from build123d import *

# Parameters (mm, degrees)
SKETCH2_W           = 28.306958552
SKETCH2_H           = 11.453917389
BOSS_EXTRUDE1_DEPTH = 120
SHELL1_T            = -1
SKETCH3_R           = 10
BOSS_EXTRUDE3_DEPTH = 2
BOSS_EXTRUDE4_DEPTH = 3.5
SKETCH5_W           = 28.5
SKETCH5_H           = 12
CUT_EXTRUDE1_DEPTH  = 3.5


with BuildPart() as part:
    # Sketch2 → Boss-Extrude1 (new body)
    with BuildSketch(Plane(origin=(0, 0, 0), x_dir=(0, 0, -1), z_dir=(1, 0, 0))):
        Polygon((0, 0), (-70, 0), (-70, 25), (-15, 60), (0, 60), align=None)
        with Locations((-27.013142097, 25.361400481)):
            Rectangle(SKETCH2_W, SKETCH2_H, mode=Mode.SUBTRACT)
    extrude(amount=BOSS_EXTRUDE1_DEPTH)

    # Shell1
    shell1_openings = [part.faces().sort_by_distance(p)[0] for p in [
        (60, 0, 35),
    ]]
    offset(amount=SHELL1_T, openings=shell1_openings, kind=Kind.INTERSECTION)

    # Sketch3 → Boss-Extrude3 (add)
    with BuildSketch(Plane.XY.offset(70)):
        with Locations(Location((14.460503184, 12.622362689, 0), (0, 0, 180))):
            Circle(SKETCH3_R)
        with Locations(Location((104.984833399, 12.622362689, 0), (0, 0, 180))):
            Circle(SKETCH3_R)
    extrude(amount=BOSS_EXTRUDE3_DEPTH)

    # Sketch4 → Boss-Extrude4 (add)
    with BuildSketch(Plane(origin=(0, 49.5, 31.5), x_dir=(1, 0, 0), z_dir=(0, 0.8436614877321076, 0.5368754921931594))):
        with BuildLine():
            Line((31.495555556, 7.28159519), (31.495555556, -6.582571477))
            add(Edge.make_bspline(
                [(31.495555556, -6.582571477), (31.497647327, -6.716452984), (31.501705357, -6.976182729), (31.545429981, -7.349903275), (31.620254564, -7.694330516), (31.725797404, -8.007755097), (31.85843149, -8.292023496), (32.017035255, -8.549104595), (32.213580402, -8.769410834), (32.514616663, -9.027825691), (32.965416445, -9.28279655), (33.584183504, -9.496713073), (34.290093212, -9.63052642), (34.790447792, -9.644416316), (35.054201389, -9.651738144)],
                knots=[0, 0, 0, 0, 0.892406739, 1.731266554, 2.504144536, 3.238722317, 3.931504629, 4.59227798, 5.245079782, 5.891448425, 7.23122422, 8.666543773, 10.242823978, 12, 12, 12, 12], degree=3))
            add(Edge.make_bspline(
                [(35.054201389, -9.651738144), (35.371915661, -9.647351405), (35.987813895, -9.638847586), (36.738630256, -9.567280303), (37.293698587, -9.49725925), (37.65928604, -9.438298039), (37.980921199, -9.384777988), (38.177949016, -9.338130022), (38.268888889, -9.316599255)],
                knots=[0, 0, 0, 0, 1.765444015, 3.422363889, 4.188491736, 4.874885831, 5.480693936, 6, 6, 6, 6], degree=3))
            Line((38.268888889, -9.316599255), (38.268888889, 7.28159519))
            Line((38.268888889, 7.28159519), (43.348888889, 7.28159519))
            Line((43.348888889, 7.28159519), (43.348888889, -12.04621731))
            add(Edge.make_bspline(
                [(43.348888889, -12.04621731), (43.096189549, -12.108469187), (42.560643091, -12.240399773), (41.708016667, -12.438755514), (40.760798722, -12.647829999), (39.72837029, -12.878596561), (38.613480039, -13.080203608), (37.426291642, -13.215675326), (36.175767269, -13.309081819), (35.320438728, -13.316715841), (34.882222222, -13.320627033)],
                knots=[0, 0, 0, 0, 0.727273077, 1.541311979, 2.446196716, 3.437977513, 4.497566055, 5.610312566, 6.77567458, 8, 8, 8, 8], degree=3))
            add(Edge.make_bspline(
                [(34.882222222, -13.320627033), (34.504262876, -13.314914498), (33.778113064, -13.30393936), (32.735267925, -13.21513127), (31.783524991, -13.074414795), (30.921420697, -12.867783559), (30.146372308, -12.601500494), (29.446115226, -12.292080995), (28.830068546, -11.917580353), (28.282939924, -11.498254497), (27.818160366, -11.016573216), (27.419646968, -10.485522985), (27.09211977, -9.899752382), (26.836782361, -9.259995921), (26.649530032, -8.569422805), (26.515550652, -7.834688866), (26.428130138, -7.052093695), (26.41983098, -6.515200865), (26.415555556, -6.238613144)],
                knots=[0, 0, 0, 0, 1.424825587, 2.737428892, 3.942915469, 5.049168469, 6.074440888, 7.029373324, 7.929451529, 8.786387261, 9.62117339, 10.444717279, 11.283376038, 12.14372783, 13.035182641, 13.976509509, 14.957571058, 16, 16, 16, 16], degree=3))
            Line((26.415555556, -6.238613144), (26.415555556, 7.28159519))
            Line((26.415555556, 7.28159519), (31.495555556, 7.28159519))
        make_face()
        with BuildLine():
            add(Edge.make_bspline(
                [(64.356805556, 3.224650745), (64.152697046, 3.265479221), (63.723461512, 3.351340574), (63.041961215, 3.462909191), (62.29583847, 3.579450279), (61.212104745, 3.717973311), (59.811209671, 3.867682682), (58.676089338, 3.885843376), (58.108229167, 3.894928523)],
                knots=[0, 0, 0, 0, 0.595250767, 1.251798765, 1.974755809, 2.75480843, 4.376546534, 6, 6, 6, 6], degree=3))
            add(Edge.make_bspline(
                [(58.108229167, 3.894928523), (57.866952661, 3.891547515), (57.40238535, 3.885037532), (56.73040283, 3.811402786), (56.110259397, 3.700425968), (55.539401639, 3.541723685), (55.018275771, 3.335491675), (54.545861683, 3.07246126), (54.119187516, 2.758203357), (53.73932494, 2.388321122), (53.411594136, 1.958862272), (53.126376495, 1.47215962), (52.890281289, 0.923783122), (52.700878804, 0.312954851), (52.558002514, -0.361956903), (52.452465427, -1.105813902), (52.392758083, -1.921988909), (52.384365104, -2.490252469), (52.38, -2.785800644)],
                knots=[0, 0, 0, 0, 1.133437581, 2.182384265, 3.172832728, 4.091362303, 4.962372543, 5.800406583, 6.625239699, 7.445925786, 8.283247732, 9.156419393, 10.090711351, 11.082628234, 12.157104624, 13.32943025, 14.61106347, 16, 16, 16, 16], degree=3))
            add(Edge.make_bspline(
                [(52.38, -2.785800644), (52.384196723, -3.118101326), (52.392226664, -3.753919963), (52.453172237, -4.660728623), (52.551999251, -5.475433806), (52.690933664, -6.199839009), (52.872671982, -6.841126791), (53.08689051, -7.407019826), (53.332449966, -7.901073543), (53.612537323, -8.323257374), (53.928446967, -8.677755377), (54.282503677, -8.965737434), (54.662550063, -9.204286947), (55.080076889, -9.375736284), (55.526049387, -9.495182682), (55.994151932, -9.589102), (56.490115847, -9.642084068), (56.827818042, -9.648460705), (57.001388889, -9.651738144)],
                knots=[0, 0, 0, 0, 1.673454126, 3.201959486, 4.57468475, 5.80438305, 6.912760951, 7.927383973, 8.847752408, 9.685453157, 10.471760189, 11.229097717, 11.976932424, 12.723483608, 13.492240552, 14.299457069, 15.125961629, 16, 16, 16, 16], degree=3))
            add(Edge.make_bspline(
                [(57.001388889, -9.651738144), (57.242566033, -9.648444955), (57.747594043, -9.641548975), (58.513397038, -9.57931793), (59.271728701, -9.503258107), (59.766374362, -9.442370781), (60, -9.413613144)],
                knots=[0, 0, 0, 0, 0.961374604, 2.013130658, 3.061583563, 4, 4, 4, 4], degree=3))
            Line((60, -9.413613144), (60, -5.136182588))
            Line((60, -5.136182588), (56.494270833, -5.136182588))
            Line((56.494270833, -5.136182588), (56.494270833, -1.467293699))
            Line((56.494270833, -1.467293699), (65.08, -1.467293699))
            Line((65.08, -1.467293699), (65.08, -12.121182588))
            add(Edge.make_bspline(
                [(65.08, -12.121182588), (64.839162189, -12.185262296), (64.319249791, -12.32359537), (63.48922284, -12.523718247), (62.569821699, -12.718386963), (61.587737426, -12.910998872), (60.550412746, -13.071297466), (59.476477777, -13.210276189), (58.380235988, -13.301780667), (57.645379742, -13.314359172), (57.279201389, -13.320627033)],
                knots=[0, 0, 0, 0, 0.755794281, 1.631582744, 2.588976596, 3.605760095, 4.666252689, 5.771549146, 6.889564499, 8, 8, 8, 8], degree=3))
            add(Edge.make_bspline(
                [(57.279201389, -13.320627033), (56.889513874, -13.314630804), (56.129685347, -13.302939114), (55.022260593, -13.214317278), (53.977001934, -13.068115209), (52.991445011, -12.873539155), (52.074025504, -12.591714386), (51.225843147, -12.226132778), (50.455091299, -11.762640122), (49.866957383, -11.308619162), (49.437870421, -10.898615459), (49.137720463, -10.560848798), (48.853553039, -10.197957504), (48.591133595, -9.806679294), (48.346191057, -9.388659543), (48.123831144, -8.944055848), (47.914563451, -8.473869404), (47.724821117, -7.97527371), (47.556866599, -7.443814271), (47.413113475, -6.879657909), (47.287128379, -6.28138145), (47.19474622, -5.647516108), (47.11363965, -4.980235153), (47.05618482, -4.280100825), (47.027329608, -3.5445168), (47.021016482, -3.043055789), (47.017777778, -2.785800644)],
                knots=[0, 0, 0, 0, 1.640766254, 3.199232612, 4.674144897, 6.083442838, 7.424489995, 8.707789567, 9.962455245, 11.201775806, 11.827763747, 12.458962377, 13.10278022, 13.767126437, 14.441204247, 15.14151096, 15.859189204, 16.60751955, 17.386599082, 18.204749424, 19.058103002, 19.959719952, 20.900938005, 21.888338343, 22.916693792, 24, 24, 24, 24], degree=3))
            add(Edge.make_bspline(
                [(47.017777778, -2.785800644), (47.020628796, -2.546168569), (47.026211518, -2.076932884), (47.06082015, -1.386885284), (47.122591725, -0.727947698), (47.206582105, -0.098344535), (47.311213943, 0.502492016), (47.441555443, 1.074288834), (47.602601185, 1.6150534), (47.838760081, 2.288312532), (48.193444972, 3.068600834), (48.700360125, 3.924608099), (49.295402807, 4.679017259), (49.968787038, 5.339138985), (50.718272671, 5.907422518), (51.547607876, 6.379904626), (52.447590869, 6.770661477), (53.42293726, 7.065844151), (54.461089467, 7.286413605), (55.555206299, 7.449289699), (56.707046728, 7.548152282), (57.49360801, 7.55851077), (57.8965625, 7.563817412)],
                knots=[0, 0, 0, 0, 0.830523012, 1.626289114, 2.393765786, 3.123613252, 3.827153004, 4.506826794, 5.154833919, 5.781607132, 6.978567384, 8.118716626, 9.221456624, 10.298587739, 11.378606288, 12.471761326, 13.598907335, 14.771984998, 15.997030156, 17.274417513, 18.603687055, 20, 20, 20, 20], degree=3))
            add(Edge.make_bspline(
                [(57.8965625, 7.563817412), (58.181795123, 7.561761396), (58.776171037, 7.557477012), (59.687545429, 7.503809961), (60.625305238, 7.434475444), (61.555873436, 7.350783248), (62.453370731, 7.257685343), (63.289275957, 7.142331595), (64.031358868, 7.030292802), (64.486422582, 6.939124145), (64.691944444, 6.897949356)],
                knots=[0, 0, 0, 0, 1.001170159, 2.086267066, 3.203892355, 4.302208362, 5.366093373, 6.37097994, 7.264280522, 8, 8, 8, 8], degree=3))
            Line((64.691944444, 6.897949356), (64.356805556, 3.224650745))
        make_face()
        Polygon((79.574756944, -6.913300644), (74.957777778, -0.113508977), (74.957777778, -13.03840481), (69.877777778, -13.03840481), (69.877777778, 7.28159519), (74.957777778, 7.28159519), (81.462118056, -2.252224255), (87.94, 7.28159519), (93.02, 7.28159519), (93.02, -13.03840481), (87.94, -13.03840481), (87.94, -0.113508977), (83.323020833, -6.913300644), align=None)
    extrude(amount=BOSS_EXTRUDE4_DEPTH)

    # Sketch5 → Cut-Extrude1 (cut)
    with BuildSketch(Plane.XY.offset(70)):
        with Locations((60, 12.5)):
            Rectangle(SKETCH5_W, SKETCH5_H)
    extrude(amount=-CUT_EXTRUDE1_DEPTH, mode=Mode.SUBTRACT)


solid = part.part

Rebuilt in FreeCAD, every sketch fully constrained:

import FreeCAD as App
import Part
import Sketcher
Q = App.Units.Quantity


def faces_at(feature, points):
    """Names of the faces that lie closest to the given points."""
    faces = feature.Shape.Faces
    near = lambda p: min(range(len(faces)), key=lambda i: faces[i].distToShape(Part.Vertex(*p))[0])
    return sorted({f"Face{near(p) + 1}" for p in points})

doc = App.newDocument("Part")
params = doc.addObject("Spreadsheet::Sheet", "Params")
for row, (alias, value) in enumerate([
    ("sketch1_width", "60 mm"),
    ("sketch1_width2", "25 mm"),
    ("sketch1_height", "70 mm"),
    ("sketch1_height2", "15 mm"),
    ("pad1_length", "120 mm"),
    ("thickness_wall", "1 mm"),
    ("sketch2_diameter", "20 mm"),
    ("pad2_length", "2 mm"),
    ("sketch3_height", "20.32 mm"),
    ("pad3_length", "3.5 mm"),
    ("sketch4_height", "12 mm"),
    ("sketch4_width", "28.5 mm"),
    ("pocket1_length", "3.5 mm"),
], start=1):
    params.set(f"A{row}", alias)
    params.set(f"B{row}", "=" + value)
    params.setAlias(f"B{row}", alias)

body = doc.addObject("PartDesign::Body", "Body")

sketch1 = body.newObject("Sketcher::SketchObject", "Sketch")
sketch1.AttachmentSupport = (doc.getObject("YZ_Plane"), [""])
sketch1.MapMode = "FlatFace"
sketch1.addGeometry([
    Part.LineSegment(App.Vector(0, 70, 0), App.Vector(0, 0, 0)),
    Part.LineSegment(App.Vector(0, 0, 0), App.Vector(60, 0, 0)),
    Part.LineSegment(App.Vector(60, 0, 0), App.Vector(60, 15, 0)),
    Part.LineSegment(App.Vector(60, 15, 0), App.Vector(25, 70, 0)),
    Part.LineSegment(App.Vector(25, 70, 0), App.Vector(0, 70, 0)),
    Part.LineSegment(App.Vector(20, 41, 0), App.Vector(31, 41, 0)),
    Part.LineSegment(App.Vector(31, 41, 0), App.Vector(31, 13, 0)),
    Part.LineSegment(App.Vector(31, 13, 0), App.Vector(20, 13, 0)),
    Part.LineSegment(App.Vector(20, 13, 0), App.Vector(20, 41, 0)),
], False)
sketch1.addConstraint([
    Sketcher.Constraint("Coincident", 0, 2, 1, 1),
    Sketcher.Constraint("Coincident", 1, 2, 2, 1),
    Sketcher.Constraint("Coincident", 2, 2, 3, 1),
    Sketcher.Constraint("Coincident", 3, 2, 4, 1),
    Sketcher.Constraint("Coincident", 4, 2, 0, 1),
    Sketcher.Constraint("Coincident", 5, 2, 6, 1),
    Sketcher.Constraint("Coincident", 6, 2, 7, 1),
    Sketcher.Constraint("Coincident", 7, 2, 8, 1),
    Sketcher.Constraint("Coincident", 8, 2, 5, 1),
    Sketcher.Constraint("Vertical", 0),
    Sketcher.Constraint("Horizontal", 1),
    Sketcher.Constraint("Vertical", 2),
    Sketcher.Constraint("Horizontal", 4),
    Sketcher.Constraint("Horizontal", 5),
    Sketcher.Constraint("Vertical", 6),
    Sketcher.Constraint("Horizontal", 7),
    Sketcher.Constraint("Vertical", 8),
    Sketcher.Constraint("Coincident", 0, 2, -1, 1),
    Sketcher.Constraint("DistanceX", 1, 1, 1, 2, Q("60 mm")),
    Sketcher.Constraint("DistanceX", 4, 2, 4, 1, Q("25 mm")),
    Sketcher.Constraint("DistanceY", 0, 2, 0, 1, Q("70 mm")),
    Sketcher.Constraint("DistanceY", 2, 1, 2, 2, Q("15 mm")),
    Sketcher.Constraint("DistanceY", 6, 2, 6, 1, Q("28.306959 mm")),
    Sketcher.Constraint("DistanceX", 5, 1, 5, 2, Q("11.453917 mm")),
    Sketcher.Constraint("DistanceX", -1, 1, 5, 2, Q("31.088359 mm")),
    Sketcher.Constraint("DistanceY", -1, 1, 5, 2, Q("41.166621 mm")),
])
sketch1.setExpression("Constraints[18]", "Params.sketch1_width")
sketch1.setExpression("Constraints[19]", "Params.sketch1_width2")
sketch1.setExpression("Constraints[20]", "Params.sketch1_height")
sketch1.setExpression("Constraints[21]", "Params.sketch1_height2")
pad1 = body.newObject("PartDesign::Pad", "Pad")
pad1.Profile = sketch1
pad1.setExpression("Length", "Params.pad1_length")
doc.recompute()

thickness = body.newObject("PartDesign::Thickness", "Thickness")
thickness.Base = (pad1, faces_at(pad1, [(60, 0, 35)]))
thickness.setExpression("Value", "Params.thickness_wall")
thickness.Reversed = True
thickness.Join = "Intersection"

sketch2 = body.newObject("Sketcher::SketchObject", "Sketch001")
sketch2.AttachmentSupport = (doc.getObject("XY_Plane"), [""])
sketch2.MapMode = "FlatFace"
sketch2.AttachmentOffset = App.Placement(App.Vector(0, 0, 70), App.Rotation())
sketch2.addGeometry([
    Part.Circle(App.Vector(14, 13, 0), App.Vector(0, 0, 1), 10),
    Part.Circle(App.Vector(105, 13, 0), App.Vector(0, 0, 1), 10),
], False)
sketch2.addConstraint([
    Sketcher.Constraint("Equal", 0, 1),
    Sketcher.Constraint("Horizontal", 0, 3, 1, 3),
    Sketcher.Constraint("Diameter", 0, Q("20 mm")),
    Sketcher.Constraint("DistanceX", 0, 3, 1, 3, Q("90.52433 mm")),
    Sketcher.Constraint("DistanceX", -1, 1, 0, 3, Q("14.460503 mm")),
    Sketcher.Constraint("DistanceY", -1, 1, 0, 3, Q("12.622363 mm")),
])
sketch2.setExpression("Constraints[2]", "Params.sketch2_diameter")
pad2 = body.newObject("PartDesign::Pad", "Pad001")
pad2.Profile = sketch2
pad2.setExpression("Length", "Params.pad2_length")

sketch3 = body.newObject("Sketcher::SketchObject", "Sketch002")
sketch3.Placement = App.Placement(App.Vector(0, 49.5, 31.5), App.Rotation(App.Vector(1, 0, 0), App.Vector(0, 0.536875492, -0.843661488), App.Vector(0, 0.843661488, 0.536875492), "ZXY"))
sketch3.addGeometry([
    Part.LineSegment(App.Vector(31.495556, -6.582571, 0), App.Vector(31.495556, 7.281595, 0)),
    Part.LineSegment(App.Vector(31.495556, 7.281595, 0), App.Vector(26.415556, 7.281595, 0)),
    Part.LineSegment(App.Vector(26.415556, 7.281595, 0), App.Vector(26.415556, -6.238613, 0)),
    Part.BSplineCurve([App.Vector(34.882222, -13.320627, 0), App.Vector(34.504263, -13.314915, 0), App.Vector(33.778113, -13.303939, 0), App.Vector(32.735268, -13.215131, 0), App.Vector(31.783525, -13.074415, 0), App.Vector(30.921421, -12.867784, 0), App.Vector(30.146372, -12.6015, 0), App.Vector(29.446115, -12.292081, 0), App.Vector(28.830069, -11.91758, 0), App.Vector(28.28294, -11.498254, 0), App.Vector(27.81816, -11.016573, 0), App.Vector(27.419647, -10.485523, 0), App.Vector(27.09212, -9.899752, 0), App.Vector(26.836782, -9.259996, 0), App.Vector(26.64953, -8.569423, 0), App.Vector(26.515551, -7.834689, 0), App.Vector(26.42813, -7.052094, 0), App.Vector(26.419831, -6.515201, 0), App.Vector(26.415556, -6.238613, 0)], [4, 1, 1, 1, 1, 1, 1, 1, 1, 1, 1, 1, 1, 1, 1, 1, 4], [0, 1.424825587, 2.737428892, 3.942915469, 5.049168469, 6.074440888, 7.029373324, 7.929451529, 8.786387261, 9.62117339, 10.444717279, 11.283376038, 12.14372783, 13.035182641, 13.976509509, 14.957571058, 16], False, 3, [1, 1, 1, 1, 1, 1, 1, 1, 1, 1, 1, 1, 1, 1, 1, 1, 1, 1, 1], False),
    Part.BSplineCurve([App.Vector(43.348889, -12.046217, 0), App.Vector(43.09619, -12.108469, 0), App.Vector(42.560643, -12.2404, 0), App.Vector(41.708017, -12.438756, 0), App.Vector(40.760799, -12.64783, 0), App.Vector(39.72837, -12.878597, 0), App.Vector(38.61348, -13.080204, 0), App.Vector(37.426292, -13.215675, 0), App.Vector(36.175767, -13.309082, 0), App.Vector(35.320439, -13.316716, 0), App.Vector(34.882222, -13.320627, 0)], [4, 1, 1, 1, 1, 1, 1, 1, 4], [0, 0.727273077, 1.541311979, 2.446196716, 3.437977513, 4.497566055, 5.610312566, 6.77567458, 8], False, 3, [1, 1, 1, 1, 1, 1, 1, 1, 1, 1, 1], False),
    Part.LineSegment(App.Vector(43.348889, -12.046217, 0), App.Vector(43.348889, 7.281595, 0)),
    Part.LineSegment(App.Vector(43.348889, 7.281595, 0), App.Vector(38.268889, 7.281595, 0)),
    Part.LineSegment(App.Vector(38.268889, 7.281595, 0), App.Vector(38.268889, -9.316599, 0)),
    Part.BSplineCurve([App.Vector(35.054201, -9.651738, 0), App.Vector(35.371916, -9.647351, 0), App.Vector(35.987814, -9.638848, 0), App.Vector(36.73863, -9.56728, 0), App.Vector(37.293699, -9.497259, 0), App.Vector(37.659286, -9.438298, 0), App.Vector(37.980921, -9.384778, 0), App.Vector(38.177949, -9.33813, 0), App.Vector(38.268889, -9.316599, 0)], [4, 1, 1, 1, 1, 1, 4], [0, 1.765444015, 3.422363889, 4.188491736, 4.874885831, 5.480693936, 6], False, 3, [1, 1, 1, 1, 1, 1, 1, 1, 1], False),
    Part.BSplineCurve([App.Vector(31.495556, -6.582571, 0), App.Vector(31.497647, -6.716453, 0), App.Vector(31.501705, -6.976183, 0), App.Vector(31.54543, -7.349903, 0), App.Vector(31.620255, -7.694331, 0), App.Vector(31.725797, -8.007755, 0), App.Vector(31.858431, -8.292023, 0), App.Vector(32.017035, -8.549105, 0), App.Vector(32.21358, -8.769411, 0), App.Vector(32.514617, -9.027826, 0), App.Vector(32.965416, -9.282797, 0), App.Vector(33.584184, -9.496713, 0), App.Vector(34.290093, -9.630526, 0), App.Vector(34.790448, -9.644416, 0), App.Vector(35.054201, -9.651738, 0)], [4, 1, 1, 1, 1, 1, 1, 1, 1, 1, 1, 1, 4], [0, 0.892406739, 1.731266554, 2.504144536, 3.238722317, 3.931504629, 4.59227798, 5.245079782, 5.891448425, 7.23122422, 8.666543773, 10.242823978, 12], False, 3, [1, 1, 1, 1, 1, 1, 1, 1, 1, 1, 1, 1, 1, 1, 1], False),
    Part.BSplineCurve([App.Vector(64.356806, 3.224651, 0), App.Vector(64.152697, 3.265479, 0), App.Vector(63.723462, 3.351341, 0), App.Vector(63.041961, 3.462909, 0), App.Vector(62.295838, 3.57945, 0), App.Vector(61.212105, 3.717973, 0), App.Vector(59.81121, 3.867683, 0), App.Vector(58.676089, 3.885843, 0), App.Vector(58.108229, 3.894929, 0)], [4, 1, 1, 1, 1, 1, 4], [0, 0.595250767, 1.251798765, 1.974755809, 2.75480843, 4.376546534, 6], False, 3, [1, 1, 1, 1, 1, 1, 1, 1, 1], False),
    Part.LineSegment(App.Vector(64.356806, 3.224651, 0), App.Vector(64.691944, 6.897949, 0)),
    Part.BSplineCurve([App.Vector(57.896563, 7.563817, 0), App.Vector(58.181795, 7.561761, 0), App.Vector(58.776171, 7.557477, 0), App.Vector(59.687545, 7.50381, 0), App.Vector(60.625305, 7.434475, 0), App.Vector(61.555873, 7.350783, 0), App.Vector(62.453371, 7.257685, 0), App.Vector(63.289276, 7.142332, 0), App.Vector(64.031359, 7.030293, 0), App.Vector(64.486423, 6.939124, 0), App.Vector(64.691944, 6.897949, 0)], [4, 1, 1, 1, 1, 1, 1, 1, 4], [0, 1.001170159, 2.086267066, 3.203892355, 4.302208362, 5.366093373, 6.37097994, 7.264280522, 8], False, 3, [1, 1, 1, 1, 1, 1, 1, 1, 1, 1, 1], False),
    Part.BSplineCurve([App.Vector(47.017778, -2.785801, 0), App.Vector(47.020629, -2.546169, 0), App.Vector(47.026212, -2.076933, 0), App.Vector(47.06082, -1.386885, 0), App.Vector(47.122592, -0.727948, 0), App.Vector(47.206582, -0.098345, 0), App.Vector(47.311214, 0.502492, 0), App.Vector(47.441555, 1.074289, 0), App.Vector(47.602601, 1.615053, 0), App.Vector(47.83876, 2.288313, 0), App.Vector(48.193445, 3.068601, 0), App.Vector(48.70036, 3.924608, 0), App.Vector(49.295403, 4.679017, 0), App.Vector(49.968787, 5.339139, 0), App.Vector(50.718273, 5.907423, 0), App.Vector(51.547608, 6.379905, 0), App.Vector(52.447591, 6.770661, 0), App.Vector(53.422937, 7.065844, 0), App.Vector(54.461089, 7.286414, 0), App.Vector(55.555206, 7.44929, 0), App.Vector(56.707047, 7.548152, 0), App.Vector(57.493608, 7.558511, 0), App.Vector(57.896563, 7.563817, 0)], [4, 1, 1, 1, 1, 1, 1, 1, 1, 1, 1, 1, 1, 1, 1, 1, 1, 1, 1, 1, 4], [0, 0.830523012, 1.626289114, 2.393765786, 3.123613252, 3.827153004, 4.506826794, 5.154833919, 5.781607132, 6.978567384, 8.118716626, 9.221456624, 10.298587739, 11.378606288, 12.471761326, 13.598907335, 14.771984998, 15.997030156, 17.274417513, 18.603687055, 20], False, 3, [1, 1, 1, 1, 1, 1, 1, 1, 1, 1, 1, 1, 1, 1, 1, 1, 1, 1, 1, 1, 1, 1, 1], False),
    Part.BSplineCurve([App.Vector(57.279201, -13.320627, 0), App.Vector(56.889514, -13.314631, 0), App.Vector(56.129685, -13.302939, 0), App.Vector(55.022261, -13.214317, 0), App.Vector(53.977002, -13.068115, 0), App.Vector(52.991445, -12.873539, 0), App.Vector(52.074026, -12.591714, 0), App.Vector(51.225843, -12.226133, 0), App.Vector(50.455091, -11.76264, 0), App.Vector(49.866957, -11.308619, 0), App.Vector(49.43787, -10.898615, 0), App.Vector(49.13772, -10.560849, 0), App.Vector(48.853553, -10.197958, 0), App.Vector(48.591134, -9.806679, 0), App.Vector(48.346191, -9.38866, 0), App.Vector(48.123831, -8.944056, 0), App.Vector(47.914563, -8.473869, 0), App.Vector(47.724821, -7.975274, 0), App.Vector(47.556867, -7.443814, 0), App.Vector(47.413113, -6.879658, 0), App.Vector(47.287128, -6.281381, 0), App.Vector(47.194746, -5.647516, 0), App.Vector(47.11364, -4.980235, 0), App.Vector(47.056185, -4.280101, 0), App.Vector(47.02733, -3.544517, 0), App.Vector(47.021016, -3.043056, 0), App.Vector(47.017778, -2.785801, 0)], [4, 1, 1, 1, 1, 1, 1, 1, 1, 1, 1, 1, 1, 1, 1, 1, 1, 1, 1, 1, 1, 1, 1, 1, 4], [0, 1.640766254, 3.199232612, 4.674144897, 6.083442838, 7.424489995, 8.707789567, 9.962455245, 11.201775806, 11.827763747, 12.458962377, 13.10278022, 13.767126437, 14.441204247, 15.14151096, 15.859189204, 16.60751955, 17.386599082, 18.204749424, 19.058103002, 19.959719952, 20.900938005, 21.888338343, 22.916693792, 24], False, 3, [1, 1, 1, 1, 1, 1, 1, 1, 1, 1, 1, 1, 1, 1, 1, 1, 1, 1, 1, 1, 1, 1, 1, 1, 1, 1, 1], False),
    Part.BSplineCurve([App.Vector(65.08, -12.121183, 0), App.Vector(64.839162, -12.185262, 0), App.Vector(64.31925, -12.323595, 0), App.Vector(63.489223, -12.523718, 0), App.Vector(62.569822, -12.718387, 0), App.Vector(61.587737, -12.910999, 0), App.Vector(60.550413, -13.071297, 0), App.Vector(59.476478, -13.210276, 0), App.Vector(58.380236, -13.301781, 0), App.Vector(57.64538, -13.314359, 0), App.Vector(57.279201, -13.320627, 0)], [4, 1, 1, 1, 1, 1, 1, 1, 4], [0, 0.755794281, 1.631582744, 2.588976596, 3.605760095, 4.666252689, 5.771549146, 6.889564499, 8], False, 3, [1, 1, 1, 1, 1, 1, 1, 1, 1, 1, 1], False),
    Part.LineSegment(App.Vector(65.08, -12.121183, 0), App.Vector(65.08, -1.467294, 0)),
    Part.LineSegment(App.Vector(65.08, -1.467294, 0), App.Vector(56.494271, -1.467294, 0)),
    Part.LineSegment(App.Vector(56.494271, -1.467294, 0), App.Vector(56.494271, -5.136183, 0)),
    Part.LineSegment(App.Vector(56.494271, -5.136183, 0), App.Vector(60, -5.136183, 0)),
    Part.LineSegment(App.Vector(60, -5.136183, 0), App.Vector(60, -9.413613, 0)),
    Part.BSplineCurve([App.Vector(57.001389, -9.651738, 0), App.Vector(57.242566, -9.648445, 0), App.Vector(57.747594, -9.641549, 0), App.Vector(58.513397, -9.579318, 0), App.Vector(59.271729, -9.503258, 0), App.Vector(59.766374, -9.442371, 0), App.Vector(60, -9.413613, 0)], [4, 1, 1, 1, 4], [0, 0.961374604, 2.013130658, 3.061583563, 4], False, 3, [1, 1, 1, 1, 1, 1, 1], False),
    Part.BSplineCurve([App.Vector(52.38, -2.785801, 0), App.Vector(52.384197, -3.118101, 0), App.Vector(52.392227, -3.75392, 0), App.Vector(52.453172, -4.660729, 0), App.Vector(52.551999, -5.475434, 0), App.Vector(52.690934, -6.199839, 0), App.Vector(52.872672, -6.841127, 0), App.Vector(53.086891, -7.40702, 0), App.Vector(53.33245, -7.901074, 0), App.Vector(53.612537, -8.323257, 0), App.Vector(53.928447, -8.677755, 0), App.Vector(54.282504, -8.965737, 0), App.Vector(54.66255, -9.204287, 0), App.Vector(55.080077, -9.375736, 0), App.Vector(55.526049, -9.495183, 0), App.Vector(55.994152, -9.589102, 0), App.Vector(56.490116, -9.642084, 0), App.Vector(56.827818, -9.648461, 0), App.Vector(57.001389, -9.651738, 0)], [4, 1, 1, 1, 1, 1, 1, 1, 1, 1, 1, 1, 1, 1, 1, 1, 4], [0, 1.673454126, 3.201959486, 4.57468475, 5.80438305, 6.912760951, 7.927383973, 8.847752408, 9.685453157, 10.471760189, 11.229097717, 11.976932424, 12.723483608, 13.492240552, 14.299457069, 15.125961629, 16], False, 3, [1, 1, 1, 1, 1, 1, 1, 1, 1, 1, 1, 1, 1, 1, 1, 1, 1, 1, 1], False),
    Part.BSplineCurve([App.Vector(58.108229, 3.894929, 0), App.Vector(57.866953, 3.891548, 0), App.Vector(57.402385, 3.885038, 0), App.Vector(56.730403, 3.811403, 0), App.Vector(56.110259, 3.700426, 0), App.Vector(55.539402, 3.541724, 0), App.Vector(55.018276, 3.335492, 0), App.Vector(54.545862, 3.072461, 0), App.Vector(54.119188, 2.758203, 0), App.Vector(53.739325, 2.388321, 0), App.Vector(53.411594, 1.958862, 0), App.Vector(53.126376, 1.47216, 0), App.Vector(52.890281, 0.923783, 0), App.Vector(52.700879, 0.312955, 0), App.Vector(52.558003, -0.361957, 0), App.Vector(52.452465, -1.105814, 0), App.Vector(52.392758, -1.921989, 0), App.Vector(52.384365, -2.490252, 0), App.Vector(52.38, -2.785801, 0)], [4, 1, 1, 1, 1, 1, 1, 1, 1, 1, 1, 1, 1, 1, 1, 1, 4], [0, 1.133437581, 2.182384265, 3.172832728, 4.091362303, 4.962372543, 5.800406583, 6.625239699, 7.445925786, 8.283247732, 9.156419393, 10.090711351, 11.082628234, 12.157104624, 13.32943025, 14.61106347, 16], False, 3, [1, 1, 1, 1, 1, 1, 1, 1, 1, 1, 1, 1, 1, 1, 1, 1, 1, 1, 1], False),
    Part.LineSegment(App.Vector(74.957778, -0.113509, 0), App.Vector(79.574757, -6.913301, 0)),
    Part.LineSegment(App.Vector(79.574757, -6.913301, 0), App.Vector(83.323021, -6.913301, 0)),
    Part.LineSegment(App.Vector(83.323021, -6.913301, 0), App.Vector(87.94, -0.113509, 0)),
    Part.LineSegment(App.Vector(87.94, -0.113509, 0), App.Vector(87.94, -13.038405, 0)),
    Part.LineSegment(App.Vector(87.94, -13.038405, 0), App.Vector(93.02, -13.038405, 0)),
    Part.LineSegment(App.Vector(93.02, -13.038405, 0), App.Vector(93.02, 7.281595, 0)),
    Part.LineSegment(App.Vector(93.02, 7.281595, 0), App.Vector(87.94, 7.281595, 0)),
    Part.LineSegment(App.Vector(87.94, 7.281595, 0), App.Vector(81.462118, -2.252224, 0)),
    Part.LineSegment(App.Vector(81.462118, -2.252224, 0), App.Vector(74.957778, 7.281595, 0)),
    Part.LineSegment(App.Vector(74.957778, 7.281595, 0), App.Vector(69.877778, 7.281595, 0)),
    Part.LineSegment(App.Vector(69.877778, 7.281595, 0), App.Vector(69.877778, -13.038405, 0)),
    Part.LineSegment(App.Vector(69.877778, -13.038405, 0), App.Vector(74.957778, -13.038405, 0)),
    Part.LineSegment(App.Vector(74.957778, -13.038405, 0), App.Vector(74.957778, -0.113509, 0)),
], False)
sketch3.addConstraint([
    Sketcher.Constraint("Block", 3),
    Sketcher.Constraint("Block", 4),
    Sketcher.Constraint("Block", 8),
    Sketcher.Constraint("Block", 9),
    Sketcher.Constraint("Block", 10),
    Sketcher.Constraint("Block", 12),
    Sketcher.Constraint("Block", 13),
    Sketcher.Constraint("Block", 14),
    Sketcher.Constraint("Block", 15),
    Sketcher.Constraint("Block", 21),
    Sketcher.Constraint("Block", 22),
    Sketcher.Constraint("Block", 23),
    Sketcher.Constraint("Coincident", 0, 2, 1, 1),
    Sketcher.Constraint("Coincident", 1, 2, 2, 1),
    Sketcher.Constraint("Coincident", 2, 2, 3, 2),
    Sketcher.Constraint("Coincident", 4, 1, 5, 1),
    Sketcher.Constraint("Coincident", 5, 2, 6, 1),
    Sketcher.Constraint("Coincident", 6, 2, 7, 1),
    Sketcher.Constraint("Coincident", 7, 2, 8, 2),
    Sketcher.Constraint("Coincident", 9, 1, 0, 1),
    Sketcher.Constraint("Coincident", 10, 1, 11, 1),
    Sketcher.Constraint("Coincident", 11, 2, 12, 2),
    Sketcher.Constraint("Coincident", 15, 1, 16, 1),
    Sketcher.Constraint("Coincident", 16, 2, 17, 1),
    Sketcher.Constraint("Coincident", 17, 2, 18, 1),
    Sketcher.Constraint("Coincident", 18, 2, 19, 1),
    Sketcher.Constraint("Coincident", 19, 2, 20, 1),
    Sketcher.Constraint("Coincident", 20, 2, 21, 2),
    Sketcher.Constraint("Coincident", 24, 2, 25, 1),
    Sketcher.Constraint("Coincident", 25, 2, 26, 1),
    Sketcher.Constraint("Coincident", 26, 2, 27, 1),
    Sketcher.Constraint("Coincident", 27, 2, 28, 1),
    Sketcher.Constraint("Coincident", 28, 2, 29, 1),
    Sketcher.Constraint("Coincident", 29, 2, 30, 1),
    Sketcher.Constraint("Coincident", 30, 2, 31, 1),
    Sketcher.Constraint("Coincident", 31, 2, 32, 1),
    Sketcher.Constraint("Coincident", 32, 2, 33, 1),
    Sketcher.Constraint("Coincident", 33, 2, 34, 1),
    Sketcher.Constraint("Coincident", 34, 2, 35, 1),
    Sketcher.Constraint("Coincident", 35, 2, 36, 1),
    Sketcher.Constraint("Coincident", 36, 2, 24, 1),
    Sketcher.Constraint("Vertical", 0),
    Sketcher.Constraint("Horizontal", 1),
    Sketcher.Constraint("Vertical", 2),
    Sketcher.Constraint("Vertical", 5),
    Sketcher.Constraint("Horizontal", 6),
    Sketcher.Constraint("Vertical", 7),
    Sketcher.Constraint("Vertical", 16),
    Sketcher.Constraint("Horizontal", 17),
    Sketcher.Constraint("Vertical", 18),
    Sketcher.Constraint("Horizontal", 19),
    Sketcher.Constraint("Vertical", 20),
    Sketcher.Constraint("Horizontal", 25),
    Sketcher.Constraint("Vertical", 27),
    Sketcher.Constraint("Horizontal", 28),
    Sketcher.Constraint("Vertical", 29),
    Sketcher.Constraint("Horizontal", 30),
    Sketcher.Constraint("Horizontal", 33),
    Sketcher.Constraint("Vertical", 34),
    Sketcher.Constraint("Horizontal", 35),
    Sketcher.Constraint("Vertical", 36),
    Sketcher.Constraint("Horizontal", 1, 2, 5, 2),
    Sketcher.Constraint("Horizontal", 6, 2, 29, 2),
    Sketcher.Constraint("Horizontal", 30, 2, 32, 2),
    Sketcher.Constraint("Horizontal", 28, 2, 34, 2),
    Sketcher.Constraint("Horizontal", 26, 2, 36, 2),
    Sketcher.Constraint("Vertical", 27, 2, 30, 2),
    Sketcher.Constraint("Vertical", 32, 2, 35, 2),
    Sketcher.Constraint("Equal", 6, 28),
    Sketcher.Constraint("Equal", 30, 33),
    Sketcher.Constraint("Equal", 24, 26),
    Sketcher.Constraint("DistanceY", 29, 1, 29, 2, Q("20.32 mm")),
    Sketcher.Constraint("DistanceX", -1, 1, 26, 2, Q("87.94 mm")),
    Sketcher.Constraint("DistanceX", 17, 2, 17, 1, Q("8.585729 mm")),
    Sketcher.Constraint("DistanceY", 2, 2, 2, 1, Q("13.520208 mm")),
    Sketcher.Constraint("DistanceY", 16, 1, 16, 2, Q("10.653889 mm")),
    Sketcher.Constraint("DistanceY", 18, 2, 18, 1, Q("3.668889 mm")),
    Sketcher.Constraint("DistanceY", 24, 2, -1, 1, Q("6.913301 mm")),
    Sketcher.Constraint("DistanceX", 25, 1, 25, 2, Q("3.748264 mm")),
    Sketcher.Constraint("DistanceY", 27, 2, 27, 1, Q("12.924896 mm")),
    Sketcher.Constraint("DistanceX", -1, 1, 25, 2, Q("83.323021 mm")),
    Sketcher.Constraint("DistanceX", -1, 1, 31, 2, Q("81.462118 mm")),
    Sketcher.Constraint("DistanceY", 31, 2, 30, 2, Q("9.533819 mm")),
])
sketch3.setExpression("Constraints[71]", "Params.sketch3_height")
pad3 = body.newObject("PartDesign::Pad", "Pad002")
pad3.Profile = sketch3
pad3.setExpression("Length", "Params.pad3_length")

sketch4 = body.newObject("Sketcher::SketchObject", "Sketch003")
sketch4.AttachmentSupport = (doc.getObject("XY_Plane"), [""])
sketch4.MapMode = "FlatFace"
sketch4.AttachmentOffset = App.Placement(App.Vector(0, 0, 70), App.Rotation())
sketch4.addGeometry([
    Part.LineSegment(App.Vector(46, 18, 0), App.Vector(46, 6, 0)),
    Part.LineSegment(App.Vector(46, 6, 0), App.Vector(74, 6, 0)),
    Part.LineSegment(App.Vector(74, 6, 0), App.Vector(74, 18, 0)),
    Part.LineSegment(App.Vector(74, 18, 0), App.Vector(46, 18, 0)),
], False)
sketch4.addConstraint([
    Sketcher.Constraint("Coincident", 0, 2, 1, 1),
    Sketcher.Constraint("Coincident", 1, 2, 2, 1),
    Sketcher.Constraint("Coincident", 2, 2, 3, 1),
    Sketcher.Constraint("Coincident", 3, 2, 0, 1),
    Sketcher.Constraint("Vertical", 0),
    Sketcher.Constraint("Horizontal", 1),
    Sketcher.Constraint("Vertical", 2),
    Sketcher.Constraint("Horizontal", 3),
    Sketcher.Constraint("DistanceY", 0, 2, 0, 1, Q("12 mm")),
    Sketcher.Constraint("DistanceX", 1, 1, 1, 2, Q("28.5 mm")),
    Sketcher.Constraint("DistanceY", -1, 1, 0, 2, Q("6.5 mm")),
    Sketcher.Constraint("DistanceX", -1, 1, 0, 2, Q("45.75 mm")),
])
sketch4.setExpression("Constraints[8]", "Params.sketch4_height")
sketch4.setExpression("Constraints[9]", "Params.sketch4_width")
pocket1 = body.newObject("PartDesign::Pocket", "Pocket")
pocket1.Profile = sketch4
pocket1.setExpression("Length", "Params.pocket1_length")

doc.recompute()
